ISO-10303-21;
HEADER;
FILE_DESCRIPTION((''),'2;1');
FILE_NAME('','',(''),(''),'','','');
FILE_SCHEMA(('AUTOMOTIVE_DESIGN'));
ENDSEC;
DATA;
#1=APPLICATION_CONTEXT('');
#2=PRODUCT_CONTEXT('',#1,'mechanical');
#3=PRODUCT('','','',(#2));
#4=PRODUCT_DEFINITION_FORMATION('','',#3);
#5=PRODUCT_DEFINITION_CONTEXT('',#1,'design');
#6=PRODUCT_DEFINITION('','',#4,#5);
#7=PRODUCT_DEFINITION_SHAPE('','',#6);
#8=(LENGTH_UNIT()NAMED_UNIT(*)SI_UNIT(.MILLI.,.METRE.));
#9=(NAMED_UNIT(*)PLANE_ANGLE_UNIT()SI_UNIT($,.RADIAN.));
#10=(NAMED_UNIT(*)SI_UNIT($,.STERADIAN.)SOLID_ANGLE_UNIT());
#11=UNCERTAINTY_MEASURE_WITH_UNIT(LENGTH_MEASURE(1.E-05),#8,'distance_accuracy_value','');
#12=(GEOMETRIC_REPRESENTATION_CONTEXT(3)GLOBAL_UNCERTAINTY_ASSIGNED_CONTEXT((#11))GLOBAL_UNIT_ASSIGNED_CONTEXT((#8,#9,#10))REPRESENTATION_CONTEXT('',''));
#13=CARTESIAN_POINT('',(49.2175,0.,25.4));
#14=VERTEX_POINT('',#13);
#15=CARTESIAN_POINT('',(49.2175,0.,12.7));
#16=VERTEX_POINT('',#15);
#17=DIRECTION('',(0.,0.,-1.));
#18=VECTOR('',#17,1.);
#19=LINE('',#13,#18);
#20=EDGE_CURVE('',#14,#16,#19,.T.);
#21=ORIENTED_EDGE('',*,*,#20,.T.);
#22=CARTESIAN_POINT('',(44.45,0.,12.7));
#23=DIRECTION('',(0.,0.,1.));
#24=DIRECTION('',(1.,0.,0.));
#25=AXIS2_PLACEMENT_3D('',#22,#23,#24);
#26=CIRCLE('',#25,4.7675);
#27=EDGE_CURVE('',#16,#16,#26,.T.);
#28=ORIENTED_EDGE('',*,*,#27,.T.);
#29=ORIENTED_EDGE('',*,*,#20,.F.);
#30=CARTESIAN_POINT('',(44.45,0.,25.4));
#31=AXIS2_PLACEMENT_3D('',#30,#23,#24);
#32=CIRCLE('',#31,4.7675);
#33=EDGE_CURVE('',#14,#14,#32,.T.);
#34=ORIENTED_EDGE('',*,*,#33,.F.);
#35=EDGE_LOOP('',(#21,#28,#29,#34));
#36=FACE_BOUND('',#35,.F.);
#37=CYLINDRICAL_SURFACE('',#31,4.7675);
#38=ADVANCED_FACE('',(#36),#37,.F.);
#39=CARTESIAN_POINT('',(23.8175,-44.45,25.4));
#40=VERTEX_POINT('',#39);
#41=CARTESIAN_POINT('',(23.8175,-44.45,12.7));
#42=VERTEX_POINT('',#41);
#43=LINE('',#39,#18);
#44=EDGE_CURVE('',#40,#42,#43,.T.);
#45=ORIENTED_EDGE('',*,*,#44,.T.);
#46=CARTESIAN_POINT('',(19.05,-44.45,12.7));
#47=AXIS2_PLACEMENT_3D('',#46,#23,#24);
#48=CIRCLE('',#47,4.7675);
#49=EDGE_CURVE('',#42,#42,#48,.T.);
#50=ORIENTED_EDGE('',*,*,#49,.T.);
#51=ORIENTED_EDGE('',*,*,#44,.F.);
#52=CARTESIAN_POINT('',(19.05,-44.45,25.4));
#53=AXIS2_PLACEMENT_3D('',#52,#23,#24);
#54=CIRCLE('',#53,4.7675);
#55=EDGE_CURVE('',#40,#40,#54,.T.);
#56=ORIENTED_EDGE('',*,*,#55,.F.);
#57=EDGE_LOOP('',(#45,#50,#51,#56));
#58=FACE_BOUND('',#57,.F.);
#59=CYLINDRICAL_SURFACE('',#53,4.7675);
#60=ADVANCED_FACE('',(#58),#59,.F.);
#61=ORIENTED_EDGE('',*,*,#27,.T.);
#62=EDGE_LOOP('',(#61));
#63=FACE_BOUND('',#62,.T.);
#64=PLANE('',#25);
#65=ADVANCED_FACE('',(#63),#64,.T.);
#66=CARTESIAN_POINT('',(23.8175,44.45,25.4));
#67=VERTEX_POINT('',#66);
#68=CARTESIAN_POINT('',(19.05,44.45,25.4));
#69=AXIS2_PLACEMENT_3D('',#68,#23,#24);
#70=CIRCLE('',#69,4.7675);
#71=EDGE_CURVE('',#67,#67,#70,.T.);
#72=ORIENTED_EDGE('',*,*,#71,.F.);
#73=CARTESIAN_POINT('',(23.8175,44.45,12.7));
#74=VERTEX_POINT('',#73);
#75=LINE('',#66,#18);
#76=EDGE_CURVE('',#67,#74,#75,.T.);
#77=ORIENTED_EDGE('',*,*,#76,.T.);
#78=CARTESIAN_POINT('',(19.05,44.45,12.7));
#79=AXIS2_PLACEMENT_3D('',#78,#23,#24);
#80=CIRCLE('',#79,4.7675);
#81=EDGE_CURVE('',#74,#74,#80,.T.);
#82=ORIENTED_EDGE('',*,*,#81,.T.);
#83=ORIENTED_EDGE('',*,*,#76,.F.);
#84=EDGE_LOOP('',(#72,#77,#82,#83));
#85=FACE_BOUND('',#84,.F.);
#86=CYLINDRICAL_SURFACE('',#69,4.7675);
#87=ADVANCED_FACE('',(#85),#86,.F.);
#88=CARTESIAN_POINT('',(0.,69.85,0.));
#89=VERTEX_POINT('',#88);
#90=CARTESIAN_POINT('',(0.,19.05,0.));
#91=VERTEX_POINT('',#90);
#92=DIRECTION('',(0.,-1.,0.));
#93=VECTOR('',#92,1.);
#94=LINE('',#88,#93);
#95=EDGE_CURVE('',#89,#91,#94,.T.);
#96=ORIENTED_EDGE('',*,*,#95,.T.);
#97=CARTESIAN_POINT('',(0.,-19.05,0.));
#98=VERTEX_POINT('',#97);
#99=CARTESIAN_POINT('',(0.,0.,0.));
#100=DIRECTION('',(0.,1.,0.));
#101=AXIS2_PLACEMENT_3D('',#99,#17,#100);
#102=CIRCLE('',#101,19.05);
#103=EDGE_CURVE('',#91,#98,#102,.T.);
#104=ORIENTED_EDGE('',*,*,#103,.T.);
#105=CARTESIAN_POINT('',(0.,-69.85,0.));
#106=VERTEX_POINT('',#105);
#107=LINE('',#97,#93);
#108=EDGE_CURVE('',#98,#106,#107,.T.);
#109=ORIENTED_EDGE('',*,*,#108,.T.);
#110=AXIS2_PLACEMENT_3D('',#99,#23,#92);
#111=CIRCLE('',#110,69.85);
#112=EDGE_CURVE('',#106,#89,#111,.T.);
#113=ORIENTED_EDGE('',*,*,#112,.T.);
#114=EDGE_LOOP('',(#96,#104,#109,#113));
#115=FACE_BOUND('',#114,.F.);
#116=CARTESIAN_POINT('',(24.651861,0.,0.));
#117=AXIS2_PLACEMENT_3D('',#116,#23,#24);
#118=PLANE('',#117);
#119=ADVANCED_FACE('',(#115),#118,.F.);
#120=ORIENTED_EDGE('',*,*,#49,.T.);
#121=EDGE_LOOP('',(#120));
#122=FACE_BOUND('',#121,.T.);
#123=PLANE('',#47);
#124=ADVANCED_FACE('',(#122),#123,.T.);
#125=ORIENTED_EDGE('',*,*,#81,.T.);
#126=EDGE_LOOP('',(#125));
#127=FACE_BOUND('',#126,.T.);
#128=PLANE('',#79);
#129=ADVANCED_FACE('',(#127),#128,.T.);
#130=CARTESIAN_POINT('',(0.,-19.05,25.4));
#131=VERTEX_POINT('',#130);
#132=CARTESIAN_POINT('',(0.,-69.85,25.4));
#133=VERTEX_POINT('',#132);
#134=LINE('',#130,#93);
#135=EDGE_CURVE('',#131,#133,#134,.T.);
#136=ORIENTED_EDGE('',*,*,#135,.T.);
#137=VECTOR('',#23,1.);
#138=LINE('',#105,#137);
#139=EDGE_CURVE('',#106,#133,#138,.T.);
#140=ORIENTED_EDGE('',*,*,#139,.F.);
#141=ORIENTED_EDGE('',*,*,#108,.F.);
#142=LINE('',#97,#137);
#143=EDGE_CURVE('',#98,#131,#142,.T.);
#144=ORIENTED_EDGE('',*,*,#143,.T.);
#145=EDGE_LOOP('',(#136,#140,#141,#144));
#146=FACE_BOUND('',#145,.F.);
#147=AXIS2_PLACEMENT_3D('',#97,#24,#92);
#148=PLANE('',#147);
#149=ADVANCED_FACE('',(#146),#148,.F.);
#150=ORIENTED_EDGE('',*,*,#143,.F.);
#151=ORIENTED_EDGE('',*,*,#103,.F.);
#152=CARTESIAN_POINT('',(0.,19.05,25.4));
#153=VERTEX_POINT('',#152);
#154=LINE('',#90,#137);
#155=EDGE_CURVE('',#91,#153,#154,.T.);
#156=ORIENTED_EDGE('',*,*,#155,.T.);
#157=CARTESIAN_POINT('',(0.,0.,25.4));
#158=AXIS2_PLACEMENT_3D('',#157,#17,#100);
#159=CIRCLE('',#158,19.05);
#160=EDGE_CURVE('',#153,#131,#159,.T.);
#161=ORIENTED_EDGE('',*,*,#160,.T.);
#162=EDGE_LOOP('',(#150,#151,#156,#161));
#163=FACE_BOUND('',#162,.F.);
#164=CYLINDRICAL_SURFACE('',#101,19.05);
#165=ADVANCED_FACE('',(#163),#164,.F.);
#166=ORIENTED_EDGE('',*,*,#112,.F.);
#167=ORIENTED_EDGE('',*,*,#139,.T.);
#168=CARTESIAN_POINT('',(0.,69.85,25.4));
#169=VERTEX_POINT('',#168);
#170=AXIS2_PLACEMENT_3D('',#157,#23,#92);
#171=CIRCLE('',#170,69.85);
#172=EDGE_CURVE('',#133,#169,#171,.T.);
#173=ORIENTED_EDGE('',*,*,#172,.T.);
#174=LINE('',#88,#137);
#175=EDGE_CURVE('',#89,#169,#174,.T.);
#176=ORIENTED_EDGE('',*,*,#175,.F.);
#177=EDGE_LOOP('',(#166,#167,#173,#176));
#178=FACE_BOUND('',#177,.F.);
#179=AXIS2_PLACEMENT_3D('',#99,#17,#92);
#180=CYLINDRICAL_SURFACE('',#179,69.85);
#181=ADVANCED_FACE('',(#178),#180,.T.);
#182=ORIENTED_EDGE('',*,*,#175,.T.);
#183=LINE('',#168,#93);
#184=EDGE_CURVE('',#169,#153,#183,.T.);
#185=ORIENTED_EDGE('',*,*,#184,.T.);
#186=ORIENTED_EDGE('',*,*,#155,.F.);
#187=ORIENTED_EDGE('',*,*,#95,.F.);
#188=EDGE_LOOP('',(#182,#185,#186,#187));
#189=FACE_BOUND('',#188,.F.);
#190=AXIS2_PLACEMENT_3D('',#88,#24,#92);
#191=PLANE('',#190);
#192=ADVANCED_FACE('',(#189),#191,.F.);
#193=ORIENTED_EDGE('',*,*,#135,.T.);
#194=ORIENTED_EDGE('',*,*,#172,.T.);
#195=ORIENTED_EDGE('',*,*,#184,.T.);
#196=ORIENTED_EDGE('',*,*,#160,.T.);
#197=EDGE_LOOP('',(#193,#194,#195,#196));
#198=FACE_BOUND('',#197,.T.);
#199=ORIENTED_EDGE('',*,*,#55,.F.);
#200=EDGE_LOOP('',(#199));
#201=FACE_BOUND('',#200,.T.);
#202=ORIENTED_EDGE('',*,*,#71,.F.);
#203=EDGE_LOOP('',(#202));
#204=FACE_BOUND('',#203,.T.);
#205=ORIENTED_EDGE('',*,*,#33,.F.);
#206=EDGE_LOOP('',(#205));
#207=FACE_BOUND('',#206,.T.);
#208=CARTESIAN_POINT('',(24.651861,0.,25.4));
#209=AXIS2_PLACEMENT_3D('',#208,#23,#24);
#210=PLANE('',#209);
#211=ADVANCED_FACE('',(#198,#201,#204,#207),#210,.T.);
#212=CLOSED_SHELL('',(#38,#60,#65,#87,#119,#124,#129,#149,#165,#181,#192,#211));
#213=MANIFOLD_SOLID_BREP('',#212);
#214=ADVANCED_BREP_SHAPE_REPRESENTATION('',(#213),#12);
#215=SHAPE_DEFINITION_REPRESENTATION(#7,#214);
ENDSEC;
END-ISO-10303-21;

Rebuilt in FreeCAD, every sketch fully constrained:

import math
import FreeCAD as App
import Part
import Sketcher
Q = App.Units.Quantity

doc = App.newDocument("Part")
params = doc.addObject("Spreadsheet::Sheet", "Params")
for row, (alias, value) in enumerate([
    ("sketch1_height", "2 in"),
    ("sketch1_radius", "2.75 in"),
    ("pad1_length", "1 in"),
    ("pocket1_length", "0.5 in"),
], start=1):
    params.set(f"A{row}", alias)
    params.set(f"B{row}", "=" + value)
    params.setAlias(f"B{row}", alias)

body = doc.addObject("PartDesign::Body", "Body")

# Sketch on XY plane
sketch1 = body.newObject("Sketcher::SketchObject", "Sketch")
sketch1.AttachmentSupport = (doc.getObject("XY_Plane"), [""])
sketch1.MapMode = "FlatFace"
sketch1.addGeometry([
    Part.LineSegment(App.Vector(0, -19.05, 0), App.Vector(0, -69.85, 0)),
    Part.ArcOfCircle(Part.Circle(App.Vector(0, 0, 0), App.Vector(0, 0, 1), 69.85), math.radians(-90), math.radians(90)),
    Part.LineSegment(App.Vector(0, 69.85, 0), App.Vector(0, 19.05, 0)),
    Part.ArcOfCircle(Part.Circle(App.Vector(0, 0, 0), App.Vector(0, 0, 1), 19.05), math.radians(-90), math.radians(90)),
], False)
sketch1.addConstraint([
    Sketcher.Constraint("Coincident", 0, 2, 1, 1),
    Sketcher.Constraint("Coincident", 1, 2, 2, 1),
    Sketcher.Constraint("Coincident", 2, 2, 3, 2),
    Sketcher.Constraint("Coincident", 3, 1, 0, 1),
    Sketcher.Constraint("Vertical", 0),
    Sketcher.Constraint("Vertical", 2),
    Sketcher.Constraint("Coincident", 1, 3, -1, 1),
    Sketcher.Constraint("Coincident", 3, 3, -1, 1),
    Sketcher.Constraint("PointOnObject", 0, 2, -2),
    Sketcher.Constraint("PointOnObject", 1, 2, -2),
    Sketcher.Constraint("DistanceY", 0, 2, 0, 1, Q("2 in")),
    Sketcher.Constraint("Radius", 1, Q("2.75 in")),
])
sketch1.setExpression("Constraints[10]", "Params.sketch1_height")
sketch1.setExpression("Constraints[11]", "Params.sketch1_radius")
pad1 = body.newObject("PartDesign::Pad", "Pad")
pad1.Profile = sketch1
pad1.setExpression("Length", "Params.pad1_length")

# Sketch on XY plane
sketch2 = body.newObject("Sketcher::SketchObject", "Sketch001")
sketch2.AttachmentSupport = (doc.getObject("XY_Plane"), [""])
sketch2.MapMode = "FlatFace"
sketch2.AttachmentOffset = App.Placement(App.Vector(0, 0, 1 * 25.4), App.Rotation())
sketch2.addGeometry([
    Part.Circle(App.Vector(19.05, 44.45, 0), App.Vector(0, 0, 1), 4.7675),
    Part.Circle(App.Vector(19.05, -44.45, 0), App.Vector(0, 0, 1), 4.7675),
    Part.Circle(App.Vector(44.45, 0, 0), App.Vector(0, 0, 1), 4.7675),
], False)
sketch2.addConstraint([
    Sketcher.Constraint("Equal", 0, 1),
    Sketcher.Constraint("Equal", 1, 2),
    Sketcher.Constraint("Symmetric", 0, 3, 1, 3, -1),
    Sketcher.Constraint("PointOnObject", 2, 3, -1),
    Sketcher.Constraint("DistanceX", 0, 3, 2, 3, Q("1 in")),
    Sketcher.Constraint("DistanceY", 1, 3, 0, 3, Q("3.5 in")),
    Sketcher.Constraint("Diameter", 0, 9.535),
    Sketcher.Constraint("DistanceX", -1, 1, 0, 3, Q("0.75 in")),
])
pocket1 = body.newObject("PartDesign::Pocket", "Pocket")
pocket1.Profile = sketch2
pocket1.setExpression("Length", "Params.pocket1_length")

doc.recompute()
